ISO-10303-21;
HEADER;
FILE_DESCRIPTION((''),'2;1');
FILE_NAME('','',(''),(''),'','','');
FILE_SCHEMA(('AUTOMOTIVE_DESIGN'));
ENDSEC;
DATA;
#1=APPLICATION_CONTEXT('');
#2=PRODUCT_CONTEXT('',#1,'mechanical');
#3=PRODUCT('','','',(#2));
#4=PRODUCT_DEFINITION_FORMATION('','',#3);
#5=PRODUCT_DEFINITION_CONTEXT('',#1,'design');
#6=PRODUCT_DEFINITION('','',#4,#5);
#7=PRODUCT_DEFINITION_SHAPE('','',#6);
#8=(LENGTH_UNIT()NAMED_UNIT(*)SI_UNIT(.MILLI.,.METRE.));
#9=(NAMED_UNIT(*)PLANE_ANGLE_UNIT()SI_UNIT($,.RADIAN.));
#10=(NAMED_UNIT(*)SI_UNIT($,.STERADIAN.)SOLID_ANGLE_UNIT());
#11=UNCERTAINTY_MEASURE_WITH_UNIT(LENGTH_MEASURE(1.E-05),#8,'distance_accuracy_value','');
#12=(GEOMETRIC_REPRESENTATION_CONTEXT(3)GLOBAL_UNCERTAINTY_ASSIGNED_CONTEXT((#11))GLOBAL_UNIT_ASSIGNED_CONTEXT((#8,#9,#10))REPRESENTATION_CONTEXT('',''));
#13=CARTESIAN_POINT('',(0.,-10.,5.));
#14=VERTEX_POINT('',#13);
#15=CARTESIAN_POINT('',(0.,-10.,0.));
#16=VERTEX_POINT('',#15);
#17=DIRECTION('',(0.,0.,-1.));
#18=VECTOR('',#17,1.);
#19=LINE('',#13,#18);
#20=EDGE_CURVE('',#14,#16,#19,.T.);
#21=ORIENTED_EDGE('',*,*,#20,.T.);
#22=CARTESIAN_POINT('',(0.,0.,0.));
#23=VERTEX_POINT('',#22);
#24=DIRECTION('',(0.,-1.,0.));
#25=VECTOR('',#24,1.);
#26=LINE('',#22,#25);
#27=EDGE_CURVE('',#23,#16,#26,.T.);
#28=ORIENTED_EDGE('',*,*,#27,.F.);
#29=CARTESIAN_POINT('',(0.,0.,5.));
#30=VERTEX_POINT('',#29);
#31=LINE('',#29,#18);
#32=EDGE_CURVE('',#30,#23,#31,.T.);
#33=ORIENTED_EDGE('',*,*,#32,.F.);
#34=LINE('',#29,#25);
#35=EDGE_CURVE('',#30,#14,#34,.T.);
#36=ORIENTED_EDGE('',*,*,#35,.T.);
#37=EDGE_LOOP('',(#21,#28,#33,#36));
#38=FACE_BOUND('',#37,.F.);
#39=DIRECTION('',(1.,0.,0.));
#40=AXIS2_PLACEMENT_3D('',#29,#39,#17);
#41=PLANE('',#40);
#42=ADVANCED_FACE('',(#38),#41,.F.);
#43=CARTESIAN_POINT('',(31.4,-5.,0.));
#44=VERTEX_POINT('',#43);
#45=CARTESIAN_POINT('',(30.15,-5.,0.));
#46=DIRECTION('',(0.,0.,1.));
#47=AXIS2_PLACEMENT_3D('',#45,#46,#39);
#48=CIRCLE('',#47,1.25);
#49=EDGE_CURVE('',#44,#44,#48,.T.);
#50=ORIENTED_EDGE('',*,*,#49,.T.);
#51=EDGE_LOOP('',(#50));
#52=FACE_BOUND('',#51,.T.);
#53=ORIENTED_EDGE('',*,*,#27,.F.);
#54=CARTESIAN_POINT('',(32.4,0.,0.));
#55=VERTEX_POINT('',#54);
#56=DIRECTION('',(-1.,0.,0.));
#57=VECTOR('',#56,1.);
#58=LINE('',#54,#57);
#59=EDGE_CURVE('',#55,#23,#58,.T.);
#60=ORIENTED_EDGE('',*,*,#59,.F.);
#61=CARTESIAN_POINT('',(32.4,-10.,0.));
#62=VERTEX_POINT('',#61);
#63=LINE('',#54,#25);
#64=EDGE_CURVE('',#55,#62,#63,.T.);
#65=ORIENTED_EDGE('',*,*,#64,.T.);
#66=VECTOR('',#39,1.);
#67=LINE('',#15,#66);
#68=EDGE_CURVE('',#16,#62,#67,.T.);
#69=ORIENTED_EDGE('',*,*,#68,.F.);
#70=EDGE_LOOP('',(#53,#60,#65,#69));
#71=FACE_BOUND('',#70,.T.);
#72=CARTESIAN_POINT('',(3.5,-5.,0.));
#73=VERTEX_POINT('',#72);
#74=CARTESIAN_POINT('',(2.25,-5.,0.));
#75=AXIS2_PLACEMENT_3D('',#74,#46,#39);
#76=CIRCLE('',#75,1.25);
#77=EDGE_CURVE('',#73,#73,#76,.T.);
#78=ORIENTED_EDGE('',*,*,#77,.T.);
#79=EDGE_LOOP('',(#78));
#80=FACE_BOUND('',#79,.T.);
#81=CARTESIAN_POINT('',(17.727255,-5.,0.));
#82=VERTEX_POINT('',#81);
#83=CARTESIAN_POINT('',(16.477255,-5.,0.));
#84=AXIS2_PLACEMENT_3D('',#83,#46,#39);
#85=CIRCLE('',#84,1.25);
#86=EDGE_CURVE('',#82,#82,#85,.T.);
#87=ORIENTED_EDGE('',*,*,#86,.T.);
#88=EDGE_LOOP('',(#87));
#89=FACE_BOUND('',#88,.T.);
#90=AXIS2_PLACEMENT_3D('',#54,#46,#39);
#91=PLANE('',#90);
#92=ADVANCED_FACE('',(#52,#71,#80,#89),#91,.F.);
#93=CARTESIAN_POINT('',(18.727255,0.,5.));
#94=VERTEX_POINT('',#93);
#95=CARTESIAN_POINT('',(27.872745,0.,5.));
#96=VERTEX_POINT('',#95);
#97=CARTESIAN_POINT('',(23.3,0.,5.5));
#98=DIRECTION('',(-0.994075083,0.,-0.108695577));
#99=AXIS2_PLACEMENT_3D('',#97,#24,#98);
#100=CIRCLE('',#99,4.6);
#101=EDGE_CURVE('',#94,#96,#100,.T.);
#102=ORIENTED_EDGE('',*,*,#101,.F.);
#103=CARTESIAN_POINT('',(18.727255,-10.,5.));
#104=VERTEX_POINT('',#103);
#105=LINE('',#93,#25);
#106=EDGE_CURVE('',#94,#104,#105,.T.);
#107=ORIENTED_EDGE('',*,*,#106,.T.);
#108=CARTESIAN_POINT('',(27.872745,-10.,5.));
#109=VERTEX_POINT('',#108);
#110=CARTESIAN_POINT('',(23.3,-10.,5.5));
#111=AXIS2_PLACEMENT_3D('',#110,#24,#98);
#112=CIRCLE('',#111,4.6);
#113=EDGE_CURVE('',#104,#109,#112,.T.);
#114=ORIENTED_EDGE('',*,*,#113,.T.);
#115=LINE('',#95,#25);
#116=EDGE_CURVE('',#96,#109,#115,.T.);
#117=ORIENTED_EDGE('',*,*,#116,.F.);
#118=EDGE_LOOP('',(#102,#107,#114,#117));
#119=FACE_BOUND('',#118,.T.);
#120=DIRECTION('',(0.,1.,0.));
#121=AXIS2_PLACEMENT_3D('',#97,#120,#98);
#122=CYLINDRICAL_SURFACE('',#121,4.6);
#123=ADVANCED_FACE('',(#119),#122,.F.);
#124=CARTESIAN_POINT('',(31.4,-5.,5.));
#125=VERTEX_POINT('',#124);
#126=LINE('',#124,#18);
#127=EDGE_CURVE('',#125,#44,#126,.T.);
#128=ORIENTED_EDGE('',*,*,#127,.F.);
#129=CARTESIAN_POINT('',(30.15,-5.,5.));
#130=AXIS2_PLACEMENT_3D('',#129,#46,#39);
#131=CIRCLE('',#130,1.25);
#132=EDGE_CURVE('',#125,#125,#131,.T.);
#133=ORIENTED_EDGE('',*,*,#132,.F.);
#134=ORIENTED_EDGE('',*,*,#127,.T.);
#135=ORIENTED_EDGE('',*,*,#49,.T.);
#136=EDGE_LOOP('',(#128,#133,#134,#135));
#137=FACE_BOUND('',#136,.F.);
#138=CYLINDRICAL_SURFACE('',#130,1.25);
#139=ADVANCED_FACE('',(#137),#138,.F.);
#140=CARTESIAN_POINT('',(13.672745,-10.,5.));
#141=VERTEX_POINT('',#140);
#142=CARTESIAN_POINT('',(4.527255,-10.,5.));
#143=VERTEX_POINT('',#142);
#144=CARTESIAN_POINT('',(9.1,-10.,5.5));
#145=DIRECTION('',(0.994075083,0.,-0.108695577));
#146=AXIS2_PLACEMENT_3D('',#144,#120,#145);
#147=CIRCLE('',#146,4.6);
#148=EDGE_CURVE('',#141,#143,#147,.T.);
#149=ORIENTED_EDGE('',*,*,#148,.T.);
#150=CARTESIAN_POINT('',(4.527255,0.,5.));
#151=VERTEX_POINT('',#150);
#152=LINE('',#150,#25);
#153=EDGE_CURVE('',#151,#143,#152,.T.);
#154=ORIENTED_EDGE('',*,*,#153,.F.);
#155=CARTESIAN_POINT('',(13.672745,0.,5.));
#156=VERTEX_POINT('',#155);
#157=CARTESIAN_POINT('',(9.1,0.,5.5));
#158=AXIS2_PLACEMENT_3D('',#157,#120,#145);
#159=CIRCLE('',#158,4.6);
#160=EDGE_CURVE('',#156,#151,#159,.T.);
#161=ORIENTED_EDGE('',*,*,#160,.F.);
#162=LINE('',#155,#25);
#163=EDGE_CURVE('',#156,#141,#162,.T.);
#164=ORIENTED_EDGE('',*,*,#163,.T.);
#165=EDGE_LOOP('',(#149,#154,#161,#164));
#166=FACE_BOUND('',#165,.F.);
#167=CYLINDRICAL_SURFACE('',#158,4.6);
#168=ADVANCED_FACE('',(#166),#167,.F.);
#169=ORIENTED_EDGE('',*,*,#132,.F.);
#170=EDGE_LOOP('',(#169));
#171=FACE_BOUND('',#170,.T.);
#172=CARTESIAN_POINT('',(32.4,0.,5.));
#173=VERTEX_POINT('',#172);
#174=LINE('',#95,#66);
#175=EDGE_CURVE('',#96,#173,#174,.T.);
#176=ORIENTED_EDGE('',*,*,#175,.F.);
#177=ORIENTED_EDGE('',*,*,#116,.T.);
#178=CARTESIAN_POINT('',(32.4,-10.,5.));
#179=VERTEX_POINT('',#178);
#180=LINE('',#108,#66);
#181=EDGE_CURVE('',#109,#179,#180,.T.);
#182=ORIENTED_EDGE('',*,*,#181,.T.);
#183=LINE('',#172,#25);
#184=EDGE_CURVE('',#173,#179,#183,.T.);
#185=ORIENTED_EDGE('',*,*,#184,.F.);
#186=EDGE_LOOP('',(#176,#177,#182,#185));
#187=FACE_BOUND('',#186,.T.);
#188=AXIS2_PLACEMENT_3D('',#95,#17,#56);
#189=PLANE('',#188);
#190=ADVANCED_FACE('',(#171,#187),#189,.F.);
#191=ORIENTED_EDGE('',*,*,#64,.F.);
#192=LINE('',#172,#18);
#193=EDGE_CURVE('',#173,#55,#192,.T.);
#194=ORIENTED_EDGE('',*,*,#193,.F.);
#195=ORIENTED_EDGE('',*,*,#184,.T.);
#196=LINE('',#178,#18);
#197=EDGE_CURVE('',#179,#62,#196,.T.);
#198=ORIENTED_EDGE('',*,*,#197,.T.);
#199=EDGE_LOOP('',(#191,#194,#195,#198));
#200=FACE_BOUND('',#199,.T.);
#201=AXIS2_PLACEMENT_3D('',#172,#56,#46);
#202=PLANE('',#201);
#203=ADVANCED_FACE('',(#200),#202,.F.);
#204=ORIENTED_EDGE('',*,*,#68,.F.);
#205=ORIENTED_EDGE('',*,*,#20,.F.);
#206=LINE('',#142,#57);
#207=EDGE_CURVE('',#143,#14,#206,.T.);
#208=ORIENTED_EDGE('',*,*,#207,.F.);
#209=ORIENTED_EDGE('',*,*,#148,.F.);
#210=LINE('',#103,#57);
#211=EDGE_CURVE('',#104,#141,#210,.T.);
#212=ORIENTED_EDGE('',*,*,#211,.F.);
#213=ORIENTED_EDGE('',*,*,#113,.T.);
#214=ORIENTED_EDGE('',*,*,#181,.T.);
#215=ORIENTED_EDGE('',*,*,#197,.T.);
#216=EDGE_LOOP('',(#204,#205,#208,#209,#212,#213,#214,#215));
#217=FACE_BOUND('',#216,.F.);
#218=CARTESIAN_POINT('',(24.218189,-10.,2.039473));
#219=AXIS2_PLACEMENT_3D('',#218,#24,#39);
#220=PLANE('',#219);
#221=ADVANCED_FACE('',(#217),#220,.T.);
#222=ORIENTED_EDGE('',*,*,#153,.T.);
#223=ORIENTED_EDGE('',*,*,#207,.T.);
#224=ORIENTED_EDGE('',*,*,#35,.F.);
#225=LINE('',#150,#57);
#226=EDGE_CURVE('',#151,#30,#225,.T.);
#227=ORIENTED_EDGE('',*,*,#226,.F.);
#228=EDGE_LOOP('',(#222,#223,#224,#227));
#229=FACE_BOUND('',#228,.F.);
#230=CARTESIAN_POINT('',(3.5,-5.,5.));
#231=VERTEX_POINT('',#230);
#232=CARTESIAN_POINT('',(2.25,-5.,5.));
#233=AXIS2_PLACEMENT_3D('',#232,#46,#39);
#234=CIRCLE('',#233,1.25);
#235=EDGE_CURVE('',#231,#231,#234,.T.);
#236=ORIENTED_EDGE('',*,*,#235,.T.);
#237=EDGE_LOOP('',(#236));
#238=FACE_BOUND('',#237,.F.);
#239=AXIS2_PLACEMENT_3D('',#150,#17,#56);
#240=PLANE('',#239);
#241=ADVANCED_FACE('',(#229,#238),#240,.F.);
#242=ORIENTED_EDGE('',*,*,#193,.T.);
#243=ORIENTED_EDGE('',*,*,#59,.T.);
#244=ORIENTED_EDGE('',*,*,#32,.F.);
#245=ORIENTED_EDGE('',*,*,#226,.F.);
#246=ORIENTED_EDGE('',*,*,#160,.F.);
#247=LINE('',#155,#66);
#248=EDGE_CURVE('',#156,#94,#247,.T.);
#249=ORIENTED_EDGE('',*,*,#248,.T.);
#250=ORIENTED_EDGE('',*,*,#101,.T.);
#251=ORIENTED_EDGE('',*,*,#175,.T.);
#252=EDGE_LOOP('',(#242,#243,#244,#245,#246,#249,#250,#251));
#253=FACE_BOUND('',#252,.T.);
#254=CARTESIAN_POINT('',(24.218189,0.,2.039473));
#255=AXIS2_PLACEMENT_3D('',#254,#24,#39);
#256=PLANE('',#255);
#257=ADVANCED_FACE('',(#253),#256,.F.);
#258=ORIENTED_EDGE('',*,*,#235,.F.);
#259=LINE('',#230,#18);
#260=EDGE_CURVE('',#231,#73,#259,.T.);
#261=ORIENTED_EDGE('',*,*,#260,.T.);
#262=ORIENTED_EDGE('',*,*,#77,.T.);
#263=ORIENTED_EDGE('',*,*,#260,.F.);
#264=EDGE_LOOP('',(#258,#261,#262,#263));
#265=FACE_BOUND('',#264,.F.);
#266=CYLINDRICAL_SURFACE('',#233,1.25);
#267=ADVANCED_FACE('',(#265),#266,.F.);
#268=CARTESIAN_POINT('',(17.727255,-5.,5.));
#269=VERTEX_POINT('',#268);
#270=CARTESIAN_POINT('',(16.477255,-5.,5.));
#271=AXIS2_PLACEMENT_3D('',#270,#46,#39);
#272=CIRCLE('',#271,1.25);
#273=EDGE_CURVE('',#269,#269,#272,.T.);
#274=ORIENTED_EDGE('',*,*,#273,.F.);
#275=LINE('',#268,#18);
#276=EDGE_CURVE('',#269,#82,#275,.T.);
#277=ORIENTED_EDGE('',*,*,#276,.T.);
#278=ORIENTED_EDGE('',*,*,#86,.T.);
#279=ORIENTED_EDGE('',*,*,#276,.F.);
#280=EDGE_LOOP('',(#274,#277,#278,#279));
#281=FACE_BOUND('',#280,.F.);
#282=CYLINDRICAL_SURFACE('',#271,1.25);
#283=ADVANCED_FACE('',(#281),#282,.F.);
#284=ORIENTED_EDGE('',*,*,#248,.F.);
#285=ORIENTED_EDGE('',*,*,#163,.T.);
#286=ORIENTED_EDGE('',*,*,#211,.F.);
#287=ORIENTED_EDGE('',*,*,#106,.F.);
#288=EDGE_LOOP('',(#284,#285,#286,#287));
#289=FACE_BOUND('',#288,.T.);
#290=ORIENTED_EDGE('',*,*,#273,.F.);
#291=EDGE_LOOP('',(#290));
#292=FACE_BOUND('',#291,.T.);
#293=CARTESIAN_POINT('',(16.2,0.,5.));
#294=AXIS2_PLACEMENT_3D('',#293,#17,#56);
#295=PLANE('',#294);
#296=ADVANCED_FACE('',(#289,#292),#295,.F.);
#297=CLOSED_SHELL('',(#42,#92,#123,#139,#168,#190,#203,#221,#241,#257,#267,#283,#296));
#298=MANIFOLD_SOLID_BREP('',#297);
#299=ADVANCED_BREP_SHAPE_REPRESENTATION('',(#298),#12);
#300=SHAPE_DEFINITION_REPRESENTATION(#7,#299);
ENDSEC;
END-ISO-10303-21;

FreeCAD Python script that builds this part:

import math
import FreeCAD as App
import Part
import Sketcher
Q = App.Units.Quantity

doc = App.newDocument("Part")
body = doc.addObject("PartDesign::Body", "Body")

sketch1 = doc.addObject("Sketcher::SketchObject", "Sketch")
body.addObject(sketch1)
sketch1.AttachmentSupport = (doc.XZ_Plane, [""])
sketch1.MapMode = "FlatFace"
sketch1.addGeometry([
    Part.LineSegment(App.Vector(4.5, 5, 0), App.Vector(0, 5, 0)),
    Part.LineSegment(App.Vector(0, 5, 0), App.Vector(0, 0, 0)),
    Part.LineSegment(App.Vector(0, 0, 0), App.Vector(16.2, 0, 0)),
    Part.LineSegment(App.Vector(16.2, 0, 0), App.Vector(16.2, 5, 0)),
    Part.LineSegment(App.Vector(16.2, 5, 0), App.Vector(13.7, 5, 0)),
    Part.ArcOfCircle(Part.Circle(App.Vector(9.1, 5.5, 0), App.Vector(0, 0, 1), 4.6), math.radians(-174), math.radians(-6)),
], False)
sketch1.addConstraint([
    Sketcher.Constraint("Coincident", 0, 2, 1, 1),
    Sketcher.Constraint("Coincident", 1, 2, 2, 1),
    Sketcher.Constraint("Coincident", 2, 2, 3, 1),
    Sketcher.Constraint("Coincident", 3, 2, 4, 1),
    Sketcher.Constraint("Coincident", 4, 2, 5, 2),
    Sketcher.Constraint("Coincident", 5, 1, 0, 1),
    Sketcher.Constraint("Horizontal", 0),
    Sketcher.Constraint("Vertical", 1),
    Sketcher.Constraint("Horizontal", 2),
    Sketcher.Constraint("Vertical", 3),
    Sketcher.Constraint("Horizontal", 4),
    Sketcher.Constraint("Coincident", 1, 2, -1, 1),
    Sketcher.Constraint("Horizontal", 0, 2, 3, 2),
    Sketcher.Constraint("Radius", 5, Q("4.6 mm")),
    Sketcher.Constraint("DistanceY", 1, 2, 1, 1, Q("5 mm")),
    Sketcher.Constraint("DistanceX", 2, 1, 2, 2, Q("16.2 mm")),
    Sketcher.Constraint("DistanceX", -1, 1, 5, 3, Q("9.1 mm")),
    Sketcher.Constraint("DistanceY", -1, 1, 5, 3, Q("5.5 mm")),
])
pad1 = doc.addObject("PartDesign::Pad", "Pad")
body.addObject(pad1)
pad1.Profile = sketch1
pad1.Length = 10
body2 = doc.addObject("PartDesign::Body", "Body001")
doc.recompute()

body2.BaseFeature = body
doc.recompute()

mirroring = doc.addObject("Part::Mirroring", "Mirroring")
mirroring.Source = body
mirroring.Base = App.Vector(16.2, -5, 2.5)
mirroring.Normal = App.Vector(1, 0, 0)
body3 = doc.addObject("PartDesign::Body", "Body002")
body3.BaseFeature = mirroring
boolean = doc.addObject("PartDesign::Boolean", "Boolean")
body2.addObject(boolean)
boolean.Type = "Fuse"
boolean.addObjects([body3])
doc.recompute()

sketch2 = doc.addObject("Sketcher::SketchObject", "Sketch001")
body2.addObject(sketch2)
sketch2.AttachmentSupport = (doc.getObject("XY_Plane001"), [""])
sketch2.MapMode = "FlatFace"
sketch2.AttachmentOffset = App.Placement(App.Vector(0, 0, 5), App.Rotation())
sketch2.addGeometry([
    Part.Circle(App.Vector(2.2, -5, 0), App.Vector(0, 0, 1), 1.2),
    Part.Circle(App.Vector(16.5, -5, 0), App.Vector(0, 0, 1), 1.2),
    Part.Circle(App.Vector(30.1, -5, 0), App.Vector(0, 0, 1), 1.2),
], False)
sketch2.addConstraint([
    Sketcher.Constraint("Equal", 0, 1),
    Sketcher.Constraint("Equal", 1, 2),
    Sketcher.Constraint("Horizontal", 0, 3, 1, 3),
    Sketcher.Constraint("Horizontal", 1, 3, 2, 3),
    Sketcher.Constraint("Diameter", 0, Q("2.5 mm")),
    Sketcher.Constraint("DistanceY", 0, 3, -1, 1, Q("5 mm")),
    Sketcher.Constraint("DistanceX", 0, 3, 2, 3, Q("27.9 mm")),
    Sketcher.Constraint("DistanceX", -1, 1, 0, 3, Q("2.25 mm")),
    Sketcher.Constraint("DistanceX", -1, 1, 1, 3, Q("16.477255 mm")),
])
pocket1 = doc.addObject("PartDesign::Pocket", "Pocket")
body2.addObject(pocket1)
pocket1.Profile = sketch2
pocket1.Type = "ThroughAll"
mirroring.Visibility = False

doc.recompute()
